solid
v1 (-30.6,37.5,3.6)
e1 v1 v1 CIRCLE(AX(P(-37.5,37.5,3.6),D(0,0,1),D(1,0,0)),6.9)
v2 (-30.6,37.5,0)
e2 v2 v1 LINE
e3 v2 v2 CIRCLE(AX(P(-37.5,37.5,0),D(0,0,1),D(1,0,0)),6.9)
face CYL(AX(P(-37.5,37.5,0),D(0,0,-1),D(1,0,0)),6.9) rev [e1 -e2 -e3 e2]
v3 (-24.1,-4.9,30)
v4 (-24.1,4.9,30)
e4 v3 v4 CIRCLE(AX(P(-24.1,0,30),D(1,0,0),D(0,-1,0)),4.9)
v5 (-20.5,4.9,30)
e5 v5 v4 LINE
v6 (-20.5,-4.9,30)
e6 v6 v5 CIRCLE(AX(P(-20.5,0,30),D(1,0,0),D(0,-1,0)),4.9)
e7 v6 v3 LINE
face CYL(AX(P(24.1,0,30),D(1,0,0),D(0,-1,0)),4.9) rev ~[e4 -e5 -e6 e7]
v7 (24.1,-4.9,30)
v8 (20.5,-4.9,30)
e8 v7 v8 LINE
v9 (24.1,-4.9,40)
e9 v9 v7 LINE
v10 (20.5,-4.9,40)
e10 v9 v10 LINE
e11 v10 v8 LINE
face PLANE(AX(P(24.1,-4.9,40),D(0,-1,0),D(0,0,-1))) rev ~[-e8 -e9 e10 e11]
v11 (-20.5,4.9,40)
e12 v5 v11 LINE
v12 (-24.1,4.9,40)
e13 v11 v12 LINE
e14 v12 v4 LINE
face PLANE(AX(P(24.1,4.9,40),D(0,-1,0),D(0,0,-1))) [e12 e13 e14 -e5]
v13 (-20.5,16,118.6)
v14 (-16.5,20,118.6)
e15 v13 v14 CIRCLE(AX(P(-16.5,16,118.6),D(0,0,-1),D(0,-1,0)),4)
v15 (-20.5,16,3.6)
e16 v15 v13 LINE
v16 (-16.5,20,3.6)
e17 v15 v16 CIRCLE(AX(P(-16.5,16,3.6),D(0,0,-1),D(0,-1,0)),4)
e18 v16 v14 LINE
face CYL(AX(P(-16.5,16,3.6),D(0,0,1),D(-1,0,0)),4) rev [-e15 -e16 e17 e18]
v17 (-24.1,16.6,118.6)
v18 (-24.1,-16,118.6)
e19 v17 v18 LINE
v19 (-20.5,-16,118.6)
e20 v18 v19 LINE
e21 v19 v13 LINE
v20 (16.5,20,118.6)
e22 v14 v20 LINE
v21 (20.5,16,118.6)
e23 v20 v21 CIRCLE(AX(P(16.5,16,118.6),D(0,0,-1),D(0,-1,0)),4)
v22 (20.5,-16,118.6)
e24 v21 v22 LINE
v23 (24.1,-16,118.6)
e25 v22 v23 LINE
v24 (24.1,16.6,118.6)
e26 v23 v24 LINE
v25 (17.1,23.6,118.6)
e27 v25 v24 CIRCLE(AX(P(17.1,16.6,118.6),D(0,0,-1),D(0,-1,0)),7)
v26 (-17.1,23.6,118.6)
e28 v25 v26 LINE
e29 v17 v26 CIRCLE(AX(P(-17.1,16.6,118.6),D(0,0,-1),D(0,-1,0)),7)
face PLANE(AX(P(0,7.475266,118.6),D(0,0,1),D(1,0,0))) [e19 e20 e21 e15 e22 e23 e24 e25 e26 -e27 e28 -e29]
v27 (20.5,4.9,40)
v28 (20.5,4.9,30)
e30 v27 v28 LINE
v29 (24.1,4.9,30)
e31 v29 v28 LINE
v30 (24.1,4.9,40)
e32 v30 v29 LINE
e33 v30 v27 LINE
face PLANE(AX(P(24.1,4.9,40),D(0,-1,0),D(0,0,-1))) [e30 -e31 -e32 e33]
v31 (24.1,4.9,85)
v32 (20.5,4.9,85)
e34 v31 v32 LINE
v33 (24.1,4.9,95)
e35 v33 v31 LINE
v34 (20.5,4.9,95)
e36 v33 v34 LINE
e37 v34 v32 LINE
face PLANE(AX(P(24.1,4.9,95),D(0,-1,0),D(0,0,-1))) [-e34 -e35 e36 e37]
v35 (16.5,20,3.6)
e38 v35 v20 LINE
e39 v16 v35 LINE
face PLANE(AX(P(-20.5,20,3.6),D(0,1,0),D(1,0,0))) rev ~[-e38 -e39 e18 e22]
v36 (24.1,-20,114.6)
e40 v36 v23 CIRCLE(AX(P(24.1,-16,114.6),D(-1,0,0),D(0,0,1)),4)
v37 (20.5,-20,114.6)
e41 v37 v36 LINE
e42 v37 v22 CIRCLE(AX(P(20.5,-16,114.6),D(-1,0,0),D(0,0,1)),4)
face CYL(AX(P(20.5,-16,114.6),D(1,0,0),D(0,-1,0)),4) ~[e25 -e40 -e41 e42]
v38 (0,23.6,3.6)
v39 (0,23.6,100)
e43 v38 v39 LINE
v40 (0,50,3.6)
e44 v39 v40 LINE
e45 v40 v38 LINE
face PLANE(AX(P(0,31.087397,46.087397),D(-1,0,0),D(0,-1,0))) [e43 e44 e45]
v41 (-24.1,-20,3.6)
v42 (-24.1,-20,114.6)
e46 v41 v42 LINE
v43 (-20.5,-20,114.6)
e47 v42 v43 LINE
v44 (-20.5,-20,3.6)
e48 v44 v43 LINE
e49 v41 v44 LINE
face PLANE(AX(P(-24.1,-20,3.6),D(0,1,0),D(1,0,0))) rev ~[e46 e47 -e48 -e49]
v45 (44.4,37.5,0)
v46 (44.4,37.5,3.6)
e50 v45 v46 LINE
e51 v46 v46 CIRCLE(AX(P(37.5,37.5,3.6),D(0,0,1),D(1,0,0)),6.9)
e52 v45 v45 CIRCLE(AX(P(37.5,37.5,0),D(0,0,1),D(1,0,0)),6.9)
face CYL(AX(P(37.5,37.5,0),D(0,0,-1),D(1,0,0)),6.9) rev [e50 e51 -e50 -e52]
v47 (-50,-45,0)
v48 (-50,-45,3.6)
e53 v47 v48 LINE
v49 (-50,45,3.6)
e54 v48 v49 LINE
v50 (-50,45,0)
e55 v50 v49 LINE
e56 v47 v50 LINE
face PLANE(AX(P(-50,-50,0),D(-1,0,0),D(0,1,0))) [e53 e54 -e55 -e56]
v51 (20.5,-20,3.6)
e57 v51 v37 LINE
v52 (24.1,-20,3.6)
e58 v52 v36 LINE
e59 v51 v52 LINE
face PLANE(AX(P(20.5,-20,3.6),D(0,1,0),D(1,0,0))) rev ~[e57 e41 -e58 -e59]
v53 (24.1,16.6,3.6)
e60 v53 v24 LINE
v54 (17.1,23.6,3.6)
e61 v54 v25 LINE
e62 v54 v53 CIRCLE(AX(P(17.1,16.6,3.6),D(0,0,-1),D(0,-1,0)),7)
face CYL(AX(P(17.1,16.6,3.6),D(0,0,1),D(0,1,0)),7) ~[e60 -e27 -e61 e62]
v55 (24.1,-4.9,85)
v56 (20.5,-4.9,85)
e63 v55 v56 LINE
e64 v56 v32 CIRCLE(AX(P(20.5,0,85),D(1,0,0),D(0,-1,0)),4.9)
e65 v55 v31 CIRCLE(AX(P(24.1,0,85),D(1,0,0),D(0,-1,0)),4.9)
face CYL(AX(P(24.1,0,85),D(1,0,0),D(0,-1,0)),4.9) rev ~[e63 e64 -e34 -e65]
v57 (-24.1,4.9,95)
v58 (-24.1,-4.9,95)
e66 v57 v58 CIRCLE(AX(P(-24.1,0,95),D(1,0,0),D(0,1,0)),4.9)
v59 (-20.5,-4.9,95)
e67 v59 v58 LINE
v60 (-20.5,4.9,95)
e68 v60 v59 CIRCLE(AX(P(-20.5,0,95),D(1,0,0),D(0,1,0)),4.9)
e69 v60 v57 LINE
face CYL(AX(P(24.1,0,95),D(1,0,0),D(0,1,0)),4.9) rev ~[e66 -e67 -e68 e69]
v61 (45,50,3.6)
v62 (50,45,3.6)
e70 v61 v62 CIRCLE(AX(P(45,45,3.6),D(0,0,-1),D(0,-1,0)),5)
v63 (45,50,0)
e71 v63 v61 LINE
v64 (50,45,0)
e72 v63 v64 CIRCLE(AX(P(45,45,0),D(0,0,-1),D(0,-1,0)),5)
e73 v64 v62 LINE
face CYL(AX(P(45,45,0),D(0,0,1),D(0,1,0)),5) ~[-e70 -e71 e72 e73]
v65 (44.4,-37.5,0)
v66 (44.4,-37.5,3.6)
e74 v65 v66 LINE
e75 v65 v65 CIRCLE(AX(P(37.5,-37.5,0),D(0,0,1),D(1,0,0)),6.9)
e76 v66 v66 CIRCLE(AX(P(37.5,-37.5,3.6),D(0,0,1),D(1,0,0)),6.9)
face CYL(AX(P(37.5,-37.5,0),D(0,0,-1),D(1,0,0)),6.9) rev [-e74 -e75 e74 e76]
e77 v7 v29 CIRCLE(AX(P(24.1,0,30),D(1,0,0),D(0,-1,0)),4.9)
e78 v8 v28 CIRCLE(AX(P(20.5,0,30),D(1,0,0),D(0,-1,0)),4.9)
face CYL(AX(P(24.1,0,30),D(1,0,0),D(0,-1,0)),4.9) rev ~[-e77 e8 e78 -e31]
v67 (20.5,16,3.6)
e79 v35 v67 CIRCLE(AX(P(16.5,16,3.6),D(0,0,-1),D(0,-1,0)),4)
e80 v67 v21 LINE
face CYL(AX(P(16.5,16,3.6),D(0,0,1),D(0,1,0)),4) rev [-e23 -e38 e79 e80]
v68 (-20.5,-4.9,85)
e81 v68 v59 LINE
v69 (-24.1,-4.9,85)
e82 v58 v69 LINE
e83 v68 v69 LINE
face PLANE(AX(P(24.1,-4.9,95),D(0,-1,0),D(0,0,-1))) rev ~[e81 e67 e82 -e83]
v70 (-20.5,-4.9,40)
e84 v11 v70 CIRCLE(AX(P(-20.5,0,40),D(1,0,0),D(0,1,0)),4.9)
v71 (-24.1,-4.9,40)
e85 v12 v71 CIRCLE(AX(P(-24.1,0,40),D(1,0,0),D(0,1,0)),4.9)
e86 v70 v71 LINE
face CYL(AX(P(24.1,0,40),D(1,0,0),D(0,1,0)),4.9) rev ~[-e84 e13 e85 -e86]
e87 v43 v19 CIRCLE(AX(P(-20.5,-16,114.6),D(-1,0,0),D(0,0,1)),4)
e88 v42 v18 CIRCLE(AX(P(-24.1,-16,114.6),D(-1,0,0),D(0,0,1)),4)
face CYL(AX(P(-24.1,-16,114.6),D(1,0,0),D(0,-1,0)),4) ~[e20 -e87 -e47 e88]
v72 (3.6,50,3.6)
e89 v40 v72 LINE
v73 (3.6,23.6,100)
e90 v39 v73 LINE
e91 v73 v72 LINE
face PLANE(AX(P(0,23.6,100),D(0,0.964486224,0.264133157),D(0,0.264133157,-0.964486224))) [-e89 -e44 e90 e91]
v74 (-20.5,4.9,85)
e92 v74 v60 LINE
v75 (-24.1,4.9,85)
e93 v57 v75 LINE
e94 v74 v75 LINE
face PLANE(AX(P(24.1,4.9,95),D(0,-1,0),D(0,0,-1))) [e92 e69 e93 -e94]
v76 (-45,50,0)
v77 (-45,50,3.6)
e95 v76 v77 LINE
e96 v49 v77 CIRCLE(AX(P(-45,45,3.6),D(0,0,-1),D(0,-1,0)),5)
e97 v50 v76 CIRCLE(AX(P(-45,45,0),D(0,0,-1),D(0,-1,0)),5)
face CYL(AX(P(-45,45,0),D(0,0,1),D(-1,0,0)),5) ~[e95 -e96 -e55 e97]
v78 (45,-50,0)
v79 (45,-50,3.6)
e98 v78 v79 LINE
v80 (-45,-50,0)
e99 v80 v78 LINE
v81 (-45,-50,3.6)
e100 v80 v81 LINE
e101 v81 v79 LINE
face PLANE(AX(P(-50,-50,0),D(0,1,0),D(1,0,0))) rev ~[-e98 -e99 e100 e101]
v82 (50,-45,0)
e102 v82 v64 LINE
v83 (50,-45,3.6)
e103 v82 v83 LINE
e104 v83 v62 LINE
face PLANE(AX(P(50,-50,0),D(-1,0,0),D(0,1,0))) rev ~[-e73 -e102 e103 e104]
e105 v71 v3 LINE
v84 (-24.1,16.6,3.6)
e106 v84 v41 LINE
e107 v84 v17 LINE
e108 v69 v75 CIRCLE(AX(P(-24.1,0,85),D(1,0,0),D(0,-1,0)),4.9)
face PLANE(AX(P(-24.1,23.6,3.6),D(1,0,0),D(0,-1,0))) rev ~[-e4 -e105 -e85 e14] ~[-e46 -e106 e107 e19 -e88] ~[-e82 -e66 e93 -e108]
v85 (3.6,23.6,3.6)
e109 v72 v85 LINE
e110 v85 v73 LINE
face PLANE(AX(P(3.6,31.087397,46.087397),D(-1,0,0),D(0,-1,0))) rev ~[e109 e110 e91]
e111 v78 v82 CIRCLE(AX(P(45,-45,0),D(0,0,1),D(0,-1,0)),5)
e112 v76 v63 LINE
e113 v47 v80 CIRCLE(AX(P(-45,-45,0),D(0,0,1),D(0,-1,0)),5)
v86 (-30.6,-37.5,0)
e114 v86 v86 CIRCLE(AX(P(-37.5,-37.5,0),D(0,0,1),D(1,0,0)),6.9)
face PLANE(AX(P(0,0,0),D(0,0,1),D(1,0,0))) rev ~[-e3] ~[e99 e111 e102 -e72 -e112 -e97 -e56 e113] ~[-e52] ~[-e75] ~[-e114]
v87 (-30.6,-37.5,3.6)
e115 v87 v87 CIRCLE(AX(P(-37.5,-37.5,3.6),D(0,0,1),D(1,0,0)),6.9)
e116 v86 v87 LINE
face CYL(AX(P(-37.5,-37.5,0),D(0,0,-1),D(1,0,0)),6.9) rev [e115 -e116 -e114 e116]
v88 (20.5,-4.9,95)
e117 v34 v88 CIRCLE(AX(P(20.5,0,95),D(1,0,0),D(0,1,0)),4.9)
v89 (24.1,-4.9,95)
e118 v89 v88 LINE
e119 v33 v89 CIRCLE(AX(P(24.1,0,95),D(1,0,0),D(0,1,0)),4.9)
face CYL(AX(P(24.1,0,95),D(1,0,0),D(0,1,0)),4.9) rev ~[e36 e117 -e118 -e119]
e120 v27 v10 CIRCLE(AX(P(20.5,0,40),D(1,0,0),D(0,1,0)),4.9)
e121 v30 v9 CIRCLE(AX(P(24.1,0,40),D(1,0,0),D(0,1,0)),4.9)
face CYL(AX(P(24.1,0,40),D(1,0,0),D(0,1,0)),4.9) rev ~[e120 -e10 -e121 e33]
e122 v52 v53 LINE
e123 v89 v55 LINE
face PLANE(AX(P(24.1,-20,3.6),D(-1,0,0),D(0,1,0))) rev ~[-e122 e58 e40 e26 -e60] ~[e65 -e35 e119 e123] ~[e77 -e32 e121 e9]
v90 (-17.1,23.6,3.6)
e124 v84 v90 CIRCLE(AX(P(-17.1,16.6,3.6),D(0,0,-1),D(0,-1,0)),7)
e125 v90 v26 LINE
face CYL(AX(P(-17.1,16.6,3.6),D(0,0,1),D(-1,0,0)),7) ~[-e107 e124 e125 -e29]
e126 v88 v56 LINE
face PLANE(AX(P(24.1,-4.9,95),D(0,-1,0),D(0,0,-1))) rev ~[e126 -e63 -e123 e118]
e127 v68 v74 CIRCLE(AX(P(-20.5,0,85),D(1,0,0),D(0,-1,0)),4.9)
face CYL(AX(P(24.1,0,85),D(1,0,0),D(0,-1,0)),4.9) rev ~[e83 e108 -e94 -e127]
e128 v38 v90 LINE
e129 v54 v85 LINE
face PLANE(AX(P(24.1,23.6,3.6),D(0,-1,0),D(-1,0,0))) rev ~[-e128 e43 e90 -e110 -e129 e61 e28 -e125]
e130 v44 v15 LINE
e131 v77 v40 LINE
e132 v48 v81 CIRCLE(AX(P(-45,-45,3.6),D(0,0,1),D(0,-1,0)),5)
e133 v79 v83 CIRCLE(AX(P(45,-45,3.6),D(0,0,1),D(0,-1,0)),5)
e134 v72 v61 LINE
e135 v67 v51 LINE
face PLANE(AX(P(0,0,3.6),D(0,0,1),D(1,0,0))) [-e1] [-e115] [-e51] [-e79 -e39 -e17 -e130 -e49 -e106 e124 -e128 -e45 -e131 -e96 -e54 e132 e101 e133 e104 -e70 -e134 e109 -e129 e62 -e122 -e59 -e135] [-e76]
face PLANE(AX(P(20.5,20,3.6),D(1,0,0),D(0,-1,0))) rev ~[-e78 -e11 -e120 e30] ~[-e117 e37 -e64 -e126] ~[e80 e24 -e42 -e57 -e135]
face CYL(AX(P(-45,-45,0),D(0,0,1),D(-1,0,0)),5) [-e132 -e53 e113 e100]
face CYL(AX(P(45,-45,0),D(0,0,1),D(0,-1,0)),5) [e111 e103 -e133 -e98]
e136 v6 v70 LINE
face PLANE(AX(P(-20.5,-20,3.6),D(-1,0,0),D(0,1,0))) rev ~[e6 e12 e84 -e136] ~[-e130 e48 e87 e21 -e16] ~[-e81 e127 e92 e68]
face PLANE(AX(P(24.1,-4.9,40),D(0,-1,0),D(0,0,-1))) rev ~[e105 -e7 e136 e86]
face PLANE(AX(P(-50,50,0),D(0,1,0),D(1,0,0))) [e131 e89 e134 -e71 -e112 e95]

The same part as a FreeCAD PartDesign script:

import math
import FreeCAD as App
import Part
import Sketcher

V = App.Vector
Q = App.Units.Quantity


def edges_at(feature, points):
    """Names of the edges that pass closest to the given points."""
    edges = feature.Shape.Edges
    near = lambda p: min(range(len(edges)), key=lambda i: edges[i].distToShape(Part.Vertex(*p))[0])
    return sorted({f"Edge{near(p) + 1}" for p in points})


def add_polygon(sketch, points):
    """Adds a closed chain of lines whose ends are joined by coincident constraints."""
    first, n = sketch.GeometryCount, len(points)
    for a, b in zip(points, points[1:] + points[:1]):
        sketch.addGeometry(Part.LineSegment(App.Vector(*a, 0), App.Vector(*b, 0)), False)
    for i in range(n):
        sketch.addConstraint(Sketcher.Constraint("Coincident", first + i, 2, first + (i + 1) % n, 1))

doc = App.newDocument("Part")
params = doc.addObject("Spreadsheet::Sheet", "Params")
for row, (alias, value) in enumerate([
    ("sketch1_diameter", "13.8 mm"),
    ("sketch1_width", "100 mm"),
    ("pad1_length", "3.6 mm"),
    ("sketch2_width", "41 mm"),
    ("sketch2_height", "40 mm"),
    ("sketch2_width2", "3.6 mm"),
    ("sketch2_height2", "43.6 mm"),
    ("pad2_length", "115 mm"),
    ("sketch3_radius", "4.9 mm"),
    ("sketch3_height", "10 mm"),
    ("sketch4_width", "26.4 mm"),
    ("sketch4_height", "96.4 mm"),
    ("pad3_length", "3.6 mm"),
    ("fillet_radius", "5 mm"),
    ("fillet2_radius", "4 mm"),
    ("fillet3_radius", "7 mm"),
], start=1):
    params.set(f"A{row}", alias)
    params.set(f"B{row}", "=" + value)
    params.setAlias(f"B{row}", alias)

body = doc.addObject("PartDesign::Body", "Body")

# Sketch on XY plane
sketch1 = body.newObject("Sketcher::SketchObject", "Sketch")
sketch1.AttachmentSupport = (doc.getObject("XY_Plane"), [""])
sketch1.MapMode = "FlatFace"
add_polygon(sketch1, [(-50, 50), (-50, -50), (50, -50), (50, 50)])  # lines 0-3
sketch1.addGeometry(Part.Circle(V(-38, -38, 0), V(0, 0, 1), 7), False)  # 4
sketch1.addGeometry(Part.Circle(V(38, -38, 0), V(0, 0, 1), 7), False)  # 5
sketch1.addGeometry(Part.Circle(V(-38, 38, 0), V(0, 0, 1), 7), False)  # 6
sketch1.addGeometry(Part.Circle(V(38, 38, 0), V(0, 0, 1), 7), False)  # 7
sketch1.addConstraint(Sketcher.Constraint("Vertical", 0))
sketch1.addConstraint(Sketcher.Constraint("Horizontal", 1))
sketch1.addConstraint(Sketcher.Constraint("Vertical", 2))
sketch1.addConstraint(Sketcher.Constraint("Horizontal", 3))
sketch1.addConstraint(Sketcher.Constraint("Equal", 4, 5))
sketch1.addConstraint(Sketcher.Constraint("Equal", 5, 6))
sketch1.addConstraint(Sketcher.Constraint("Equal", 6, 7))
sketch1.addConstraint(Sketcher.Constraint("Symmetric", 5, 3, 6, 3, -1, 1))
sketch1.addConstraint(Sketcher.Constraint("Symmetric", 4, 3, 7, 3, -1, 1))
sketch1.addConstraint(Sketcher.Constraint("Symmetric", 0, 2, 2, 2, -1, 1))
sketch1.addConstraint(Sketcher.Constraint("Symmetric", 4, 3, 5, 3, -2))
sketch1.addConstraint(Sketcher.Constraint("Equal", 3, 0))
sketch1.addConstraint(Sketcher.Constraint("Diameter", 4, Q("13.8 mm")))
sketch1.addConstraint(Sketcher.Constraint("DistanceX", 1, 1, 1, 2, Q("100 mm")))
sketch1.addConstraint(Sketcher.Constraint("DistanceX", 4, 3, 5, 3, Q("75 mm")))
sketch1.addConstraint(Sketcher.Constraint("DistanceY", 4, 3, 6, 3, Q("75 mm")))
sketch1.setExpression("Constraints[16]", "Params.sketch1_diameter")
sketch1.setExpression("Constraints[17]", "Params.sketch1_width")
pad1 = body.newObject("PartDesign::Pad", "Pad")
pad1.Profile = sketch1
pad1.setExpression("Length", "Params.pad1_length")

# Sketch on XY plane
sketch2 = body.newObject("Sketcher::SketchObject", "Sketch001")
sketch2.AttachmentSupport = (doc.getObject("XY_Plane"), [""])
sketch2.MapMode = "FlatFace"
sketch2.AttachmentOffset = App.Placement(V(0, 0, 3.6), App.Rotation())
add_polygon(sketch2, [(-20.5, -20), (-20.5, 20), (20.5, 20), (20.5, -20), (24.1, -20), (24.1, 23.6), (-24.1, 23.6), (-24.1, -20)])  # lines 0-7
sketch2.addConstraint(Sketcher.Constraint("Vertical", 0))
sketch2.addConstraint(Sketcher.Constraint("Horizontal", 1))
sketch2.addConstraint(Sketcher.Constraint("Vertical", 2))
sketch2.addConstraint(Sketcher.Constraint("Horizontal", 3))
sketch2.addConstraint(Sketcher.Constraint("Vertical", 4))
sketch2.addConstraint(Sketcher.Constraint("Horizontal", 5))
sketch2.addConstraint(Sketcher.Constraint("Vertical", 6))
sketch2.addConstraint(Sketcher.Constraint("Horizontal", 7))
sketch2.addConstraint(Sketcher.Constraint("Symmetric", 0, 2, 2, 2, -1, 1))
sketch2.addConstraint(Sketcher.Constraint("Symmetric", 3, 2, 6, 2, -2))
sketch2.addConstraint(Sketcher.Constraint("DistanceX", 1, 1, 1, 2, Q("41 mm")))
sketch2.addConstraint(Sketcher.Constraint("DistanceY", 0, 1, 0, 2, Q("40 mm")))
sketch2.addConstraint(Sketcher.Constraint("DistanceX", 3, 1, 3, 2, Q("3.6 mm")))
sketch2.addConstraint(Sketcher.Constraint("DistanceY", 4, 1, 4, 2, Q("43.6 mm")))
sketch2.setExpression("Constraints[18]", "Params.sketch2_width")
sketch2.setExpression("Constraints[19]", "Params.sketch2_height")
sketch2.setExpression("Constraints[20]", "Params.sketch2_width2")
sketch2.setExpression("Constraints[21]", "Params.sketch2_height2")
pad2 = body.newObject("PartDesign::Pad", "Pad001")
pad2.Profile = sketch2
pad2.setExpression("Length", "Params.pad2_length")

# Sketch on YZ plane
sketch3 = body.newObject("Sketcher::SketchObject", "Sketch002")
sketch3.AttachmentSupport = (doc.getObject("YZ_Plane"), [""])
sketch3.MapMode = "FlatFace"
sketch3.AttachmentOffset = App.Placement(V(0, 0, 24.1), App.Rotation())
sketch3.addGeometry(Part.ArcOfCircle(Part.Circle(V(0, 95, 0), V(0, 0, 1), 4.9), math.radians(0), math.radians(180)), False)
sketch3.addGeometry(Part.LineSegment(V(-4.9, 95, 0), V(-4.9, 85, 0)), False)
sketch3.addGeometry(Part.ArcOfCircle(Part.Circle(V(0, 85, 0), V(0, 0, 1), 4.9), math.radians(180), math.radians(360)), False)
sketch3.addGeometry(Part.LineSegment(V(4.9, 85, 0), V(4.9, 95, 0)), False)
sketch3.addGeometry(Part.ArcOfCircle(Part.Circle(V(0, 40, 0), V(0, 0, 1), 4.9), math.radians(0), math.radians(180)), False)
sketch3.addGeometry(Part.LineSegment(V(-4.9, 40, 0), V(-4.9, 30, 0)), False)
sketch3.addGeometry(Part.ArcOfCircle(Part.Circle(V(0, 30, 0), V(0, 0, 1), 4.9), math.radians(180), math.radians(360)), False)
sketch3.addGeometry(Part.LineSegment(V(4.9, 30, 0), V(4.9, 40, 0)), False)
sketch3.addConstraint(Sketcher.Constraint("Tangent", 0, 2, 1, 1))
sketch3.addConstraint(Sketcher.Constraint("Tangent", 1, 2, 2, 1))
sketch3.addConstraint(Sketcher.Constraint("Tangent", 2, 2, 3, 1))
sketch3.addConstraint(Sketcher.Constraint("Tangent", 3, 2, 0, 1))
sketch3.addConstraint(Sketcher.Constraint("Tangent", 4, 2, 5, 1))
sketch3.addConstraint(Sketcher.Constraint("Tangent", 5, 2, 6, 1))
sketch3.addConstraint(Sketcher.Constraint("Tangent", 6, 2, 7, 1))
sketch3.addConstraint(Sketcher.Constraint("Tangent", 7, 2, 4, 1))
sketch3.addConstraint(Sketcher.Constraint("Vertical", 1))
sketch3.addConstraint(Sketcher.Constraint("Vertical", 3))
sketch3.addConstraint(Sketcher.Constraint("Vertical", 5))
sketch3.addConstraint(Sketcher.Constraint("Vertical", 7))
sketch3.addConstraint(Sketcher.Constraint("Equal", 2, 4))
sketch3.addConstraint(Sketcher.Constraint("PointOnObject", 0, 3, -2))
sketch3.addConstraint(Sketcher.Constraint("PointOnObject", 4, 3, -2))
sketch3.addConstraint(Sketcher.Constraint("Equal", 3, 5))
sketch3.addConstraint(Sketcher.Constraint("Radius", 0, Q("4.9 mm")))
sketch3.addConstraint(Sketcher.Constraint("DistanceY", 1, 2, 1, 1, Q("10 mm")))
sketch3.addConstraint(Sketcher.Constraint("DistanceY", -1, 1, 0, 3, Q("95 mm")))
sketch3.addConstraint(Sketcher.Constraint("DistanceY", -1, 1, 4, 3, Q("40 mm")))
sketch3.setExpression("Constraints[16]", "Params.sketch3_radius")
sketch3.setExpression("Constraints[17]", "Params.sketch3_height")
pocket1 = body.newObject("PartDesign::Pocket", "Pocket")
pocket1.Profile = sketch3
pocket1.Type = "ThroughAll"

# Sketch on YZ plane
sketch4 = body.newObject("Sketcher::SketchObject", "Sketch003")
sketch4.AttachmentSupport = (doc.getObject("YZ_Plane"), [""])
sketch4.MapMode = "FlatFace"
add_polygon(sketch4, [(50, 4), (24, 100), (24, 4)])  # lines 0-2
sketch4.addConstraint(Sketcher.Constraint("Vertical", 1))
sketch4.addConstraint(Sketcher.Constraint("Horizontal", 2))
sketch4.addConstraint(Sketcher.Constraint("DistanceX", 2, 1, 2, 2, Q("26.4 mm")))
sketch4.addConstraint(Sketcher.Constraint("DistanceY", 1, 2, 1, 1, Q("96.4 mm")))
sketch4.addConstraint(Sketcher.Constraint("DistanceY", -1, 1, 0, 2, Q("100 mm")))
sketch4.addConstraint(Sketcher.Constraint("DistanceX", -1, 1, 2, 2, Q("50 mm")))
sketch4.setExpression("Constraints[5]", "Params.sketch4_width")
sketch4.setExpression("Constraints[6]", "Params.sketch4_height")
pad3 = body.newObject("PartDesign::Pad", "Pad002")
pad3.Profile = sketch4
pad3.setExpression("Length", "Params.pad3_length")
doc.recompute()

fillet = body.newObject("PartDesign::Fillet", "Fillet")
fillet.Base = (pad3, edges_at(pad3, [
    (-50, 50, 1.8),
    (-50, -50, 1.8),
    (50, -50, 1.8),
    (50, 50, 1.8),
]))
fillet.setExpression("Radius", "Params.fillet_radius")
doc.recompute()

fillet2 = body.newObject("PartDesign::Fillet", "Fillet001")
fillet2.Base = (fillet, edges_at(fillet, [
    (22.3, -20, 118.6),
    (-22.3, -20, 118.6),
    (20.5, 20, 61.1),
    (-20.5, 20, 61.1),
]))
fillet2.setExpression("Radius", "Params.fillet2_radius")
doc.recompute()

fillet3 = body.newObject("PartDesign::Fillet", "Fillet002")
fillet3.Base = (fillet2, edges_at(fillet2, [(24.1, 23.6, 61.1), (-24.1, 23.6, 61.1)]))
fillet3.setExpression("Radius", "Params.fillet3_radius")

doc.recompute()
